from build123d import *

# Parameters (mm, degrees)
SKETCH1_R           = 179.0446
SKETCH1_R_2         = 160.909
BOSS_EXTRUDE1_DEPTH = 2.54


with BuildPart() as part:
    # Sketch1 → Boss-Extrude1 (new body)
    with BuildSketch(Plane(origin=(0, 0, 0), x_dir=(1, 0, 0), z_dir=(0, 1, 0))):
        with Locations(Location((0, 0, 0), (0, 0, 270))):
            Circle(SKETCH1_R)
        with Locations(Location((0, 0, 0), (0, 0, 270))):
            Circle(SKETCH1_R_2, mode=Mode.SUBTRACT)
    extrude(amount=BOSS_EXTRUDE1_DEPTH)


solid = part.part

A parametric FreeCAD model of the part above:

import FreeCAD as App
import Part
import Sketcher
Q = App.Units.Quantity

doc = App.newDocument("Part")
params = doc.addObject("Spreadsheet::Sheet", "Params")
for row, (alias, value) in enumerate([
    ("sketch1_diameter", "12.67 in"),
    ("sketch1_diameter2", "14.098 in"),
    ("pad1_length", "0.1 in"),
], start=1):
    params.set(f"A{row}", alias)
    params.set(f"B{row}", "=" + value)
    params.setAlias(f"B{row}", alias)

body = doc.addObject("PartDesign::Body", "Body")

# Sketch on XZ plane
sketch1 = body.newObject("Sketcher::SketchObject", "Sketch")
sketch1.AttachmentSupport = (doc.getObject("XZ_Plane"), [""])
sketch1.MapMode = "FlatFace"
sketch1.addGeometry(Part.Circle(App.Vector(0, 0, 0), App.Vector(0, 0, 1), 179), False)
sketch1.addGeometry(Part.Circle(App.Vector(0, 0, 0), App.Vector(0, 0, 1), 161), False)
sketch1.addConstraint(Sketcher.Constraint("Coincident", 0, 3, -1, 1))
sketch1.addConstraint(Sketcher.Constraint("Coincident", 1, 3, -1, 1))
sketch1.addConstraint(Sketcher.Constraint("Diameter", 1, Q("12.67 in")))
sketch1.addConstraint(Sketcher.Constraint("Diameter", 0, Q("14.098 in")))
sketch1.setExpression("Constraints[2]", "Params.sketch1_diameter")
sketch1.setExpression("Constraints[3]", "Params.sketch1_diameter2")
pad1 = body.newObject("PartDesign::Pad", "Pad")
pad1.Profile = sketch1
pad1.setExpression("Length", "Params.pad1_length")
pad1.Reversed = True

doc.recompute()
